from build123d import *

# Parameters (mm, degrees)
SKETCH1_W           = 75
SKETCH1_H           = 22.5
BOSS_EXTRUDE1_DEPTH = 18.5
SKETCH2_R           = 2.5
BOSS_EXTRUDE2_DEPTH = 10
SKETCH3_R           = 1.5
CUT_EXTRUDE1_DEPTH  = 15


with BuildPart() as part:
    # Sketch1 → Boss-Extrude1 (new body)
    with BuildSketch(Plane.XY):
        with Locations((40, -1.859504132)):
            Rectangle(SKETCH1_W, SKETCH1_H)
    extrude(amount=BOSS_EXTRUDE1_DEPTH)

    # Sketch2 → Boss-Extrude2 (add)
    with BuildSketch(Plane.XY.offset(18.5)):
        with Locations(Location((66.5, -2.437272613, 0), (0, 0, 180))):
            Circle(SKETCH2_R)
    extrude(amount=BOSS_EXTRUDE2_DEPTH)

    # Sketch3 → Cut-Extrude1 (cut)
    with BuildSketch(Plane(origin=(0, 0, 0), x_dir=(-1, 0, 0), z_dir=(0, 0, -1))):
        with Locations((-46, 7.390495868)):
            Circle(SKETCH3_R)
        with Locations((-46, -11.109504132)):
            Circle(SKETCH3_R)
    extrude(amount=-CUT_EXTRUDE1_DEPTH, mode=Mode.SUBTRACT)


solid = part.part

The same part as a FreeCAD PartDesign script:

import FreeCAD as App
import Part
import Sketcher
from FreeCAD import Vector


def add_polygon(sketch, points):
    """Adds a closed chain of lines whose ends are joined by coincident constraints."""
    first, n = sketch.GeometryCount, len(points)
    for a, b in zip(points, points[1:] + points[:1]):
        sketch.addGeometry(Part.LineSegment(App.Vector(*a, 0), App.Vector(*b, 0)), False)
    for i in range(n):
        sketch.addConstraint(Sketcher.Constraint("Coincident", first + i, 2, first + (i + 1) % n, 1))

doc = App.newDocument("Part")
body = doc.addObject("PartDesign::Body", "Body")

# Sketch on XY plane
sketch1 = body.newObject("Sketcher::SketchObject", "Sketch")
sketch1.AttachmentSupport = (doc.getObject("XY_Plane"), [""])
sketch1.MapMode = "FlatFace"
add_polygon(sketch1, [(2, 9), (2, -13), (78, -13), (78, 9)])  # lines 0-3
sketch1.addConstraint(Sketcher.Constraint("Vertical", 0))
sketch1.addConstraint(Sketcher.Constraint("Horizontal", 1))
sketch1.addConstraint(Sketcher.Constraint("Vertical", 2))
sketch1.addConstraint(Sketcher.Constraint("Horizontal", 3))
sketch1.addConstraint(Sketcher.Constraint("DistanceX", 1, 1, 1, 2, 75.0))
sketch1.addConstraint(Sketcher.Constraint("DistanceY", 0, 2, 0, 1, 22.5))
sketch1.addConstraint(Sketcher.Constraint("DistanceX", -1, 1, 0, 2, 2.5))
sketch1.addConstraint(Sketcher.Constraint("DistanceY", 0, 2, -1, 1, 13.109504))
pad1 = body.newObject("PartDesign::Pad", "Pad")
pad1.Profile = sketch1
pad1.Length = 18.5

# Sketch on XY plane
sketch2 = body.newObject("Sketcher::SketchObject", "Sketch001")
sketch2.AttachmentSupport = (doc.getObject("XY_Plane"), [""])
sketch2.MapMode = "FlatFace"
sketch2.AttachmentOffset = App.Placement(Vector(0, 0, 18.5), App.Rotation())
sketch2.addGeometry(Part.Circle(Vector(66.5, -2.4, 0), Vector(0, 0, 1), 2.5), False)
sketch2.addConstraint(Sketcher.Constraint("Diameter", 0, 5.0))
sketch2.addConstraint(Sketcher.Constraint("DistanceX", -1, 1, 0, 3, 66.5))
sketch2.addConstraint(Sketcher.Constraint("DistanceY", 0, 3, -1, 1, 2.437273))
pad2 = body.newObject("PartDesign::Pad", "Pad001")
pad2.Profile = sketch2
pad2.Length = 10

# Sketch on XY plane
sketch3 = body.newObject("Sketcher::SketchObject", "Sketch002")
sketch3.AttachmentSupport = (doc.getObject("XY_Plane"), [""])
sketch3.MapMode = "FlatFace"
sketch3.addGeometry(Part.Circle(Vector(46, 7.4, 0), Vector(0, 0, 1), 1.5), False)
sketch3.addGeometry(Part.Circle(Vector(46, -11.1, 0), Vector(0, 0, 1), 1.5), False)
sketch3.addConstraint(Sketcher.Constraint("Equal", 0, 1))
sketch3.addConstraint(Sketcher.Constraint("Vertical", 0, 3, 1, 3))
sketch3.addConstraint(Sketcher.Constraint("Diameter", 0, 3.0))
sketch3.addConstraint(Sketcher.Constraint("DistanceX", -1, 1, 0, 3, 46.0))
sketch3.addConstraint(Sketcher.Constraint("DistanceY", 1, 3, 0, 3, 18.5))
sketch3.addConstraint(Sketcher.Constraint("DistanceY", -1, 1, 0, 3, 7.390496))
pocket1 = body.newObject("PartDesign::Pocket", "Pocket")
pocket1.Profile = sketch3
pocket1.Length = 15
pocket1.Reversed = True

doc.recompute()
